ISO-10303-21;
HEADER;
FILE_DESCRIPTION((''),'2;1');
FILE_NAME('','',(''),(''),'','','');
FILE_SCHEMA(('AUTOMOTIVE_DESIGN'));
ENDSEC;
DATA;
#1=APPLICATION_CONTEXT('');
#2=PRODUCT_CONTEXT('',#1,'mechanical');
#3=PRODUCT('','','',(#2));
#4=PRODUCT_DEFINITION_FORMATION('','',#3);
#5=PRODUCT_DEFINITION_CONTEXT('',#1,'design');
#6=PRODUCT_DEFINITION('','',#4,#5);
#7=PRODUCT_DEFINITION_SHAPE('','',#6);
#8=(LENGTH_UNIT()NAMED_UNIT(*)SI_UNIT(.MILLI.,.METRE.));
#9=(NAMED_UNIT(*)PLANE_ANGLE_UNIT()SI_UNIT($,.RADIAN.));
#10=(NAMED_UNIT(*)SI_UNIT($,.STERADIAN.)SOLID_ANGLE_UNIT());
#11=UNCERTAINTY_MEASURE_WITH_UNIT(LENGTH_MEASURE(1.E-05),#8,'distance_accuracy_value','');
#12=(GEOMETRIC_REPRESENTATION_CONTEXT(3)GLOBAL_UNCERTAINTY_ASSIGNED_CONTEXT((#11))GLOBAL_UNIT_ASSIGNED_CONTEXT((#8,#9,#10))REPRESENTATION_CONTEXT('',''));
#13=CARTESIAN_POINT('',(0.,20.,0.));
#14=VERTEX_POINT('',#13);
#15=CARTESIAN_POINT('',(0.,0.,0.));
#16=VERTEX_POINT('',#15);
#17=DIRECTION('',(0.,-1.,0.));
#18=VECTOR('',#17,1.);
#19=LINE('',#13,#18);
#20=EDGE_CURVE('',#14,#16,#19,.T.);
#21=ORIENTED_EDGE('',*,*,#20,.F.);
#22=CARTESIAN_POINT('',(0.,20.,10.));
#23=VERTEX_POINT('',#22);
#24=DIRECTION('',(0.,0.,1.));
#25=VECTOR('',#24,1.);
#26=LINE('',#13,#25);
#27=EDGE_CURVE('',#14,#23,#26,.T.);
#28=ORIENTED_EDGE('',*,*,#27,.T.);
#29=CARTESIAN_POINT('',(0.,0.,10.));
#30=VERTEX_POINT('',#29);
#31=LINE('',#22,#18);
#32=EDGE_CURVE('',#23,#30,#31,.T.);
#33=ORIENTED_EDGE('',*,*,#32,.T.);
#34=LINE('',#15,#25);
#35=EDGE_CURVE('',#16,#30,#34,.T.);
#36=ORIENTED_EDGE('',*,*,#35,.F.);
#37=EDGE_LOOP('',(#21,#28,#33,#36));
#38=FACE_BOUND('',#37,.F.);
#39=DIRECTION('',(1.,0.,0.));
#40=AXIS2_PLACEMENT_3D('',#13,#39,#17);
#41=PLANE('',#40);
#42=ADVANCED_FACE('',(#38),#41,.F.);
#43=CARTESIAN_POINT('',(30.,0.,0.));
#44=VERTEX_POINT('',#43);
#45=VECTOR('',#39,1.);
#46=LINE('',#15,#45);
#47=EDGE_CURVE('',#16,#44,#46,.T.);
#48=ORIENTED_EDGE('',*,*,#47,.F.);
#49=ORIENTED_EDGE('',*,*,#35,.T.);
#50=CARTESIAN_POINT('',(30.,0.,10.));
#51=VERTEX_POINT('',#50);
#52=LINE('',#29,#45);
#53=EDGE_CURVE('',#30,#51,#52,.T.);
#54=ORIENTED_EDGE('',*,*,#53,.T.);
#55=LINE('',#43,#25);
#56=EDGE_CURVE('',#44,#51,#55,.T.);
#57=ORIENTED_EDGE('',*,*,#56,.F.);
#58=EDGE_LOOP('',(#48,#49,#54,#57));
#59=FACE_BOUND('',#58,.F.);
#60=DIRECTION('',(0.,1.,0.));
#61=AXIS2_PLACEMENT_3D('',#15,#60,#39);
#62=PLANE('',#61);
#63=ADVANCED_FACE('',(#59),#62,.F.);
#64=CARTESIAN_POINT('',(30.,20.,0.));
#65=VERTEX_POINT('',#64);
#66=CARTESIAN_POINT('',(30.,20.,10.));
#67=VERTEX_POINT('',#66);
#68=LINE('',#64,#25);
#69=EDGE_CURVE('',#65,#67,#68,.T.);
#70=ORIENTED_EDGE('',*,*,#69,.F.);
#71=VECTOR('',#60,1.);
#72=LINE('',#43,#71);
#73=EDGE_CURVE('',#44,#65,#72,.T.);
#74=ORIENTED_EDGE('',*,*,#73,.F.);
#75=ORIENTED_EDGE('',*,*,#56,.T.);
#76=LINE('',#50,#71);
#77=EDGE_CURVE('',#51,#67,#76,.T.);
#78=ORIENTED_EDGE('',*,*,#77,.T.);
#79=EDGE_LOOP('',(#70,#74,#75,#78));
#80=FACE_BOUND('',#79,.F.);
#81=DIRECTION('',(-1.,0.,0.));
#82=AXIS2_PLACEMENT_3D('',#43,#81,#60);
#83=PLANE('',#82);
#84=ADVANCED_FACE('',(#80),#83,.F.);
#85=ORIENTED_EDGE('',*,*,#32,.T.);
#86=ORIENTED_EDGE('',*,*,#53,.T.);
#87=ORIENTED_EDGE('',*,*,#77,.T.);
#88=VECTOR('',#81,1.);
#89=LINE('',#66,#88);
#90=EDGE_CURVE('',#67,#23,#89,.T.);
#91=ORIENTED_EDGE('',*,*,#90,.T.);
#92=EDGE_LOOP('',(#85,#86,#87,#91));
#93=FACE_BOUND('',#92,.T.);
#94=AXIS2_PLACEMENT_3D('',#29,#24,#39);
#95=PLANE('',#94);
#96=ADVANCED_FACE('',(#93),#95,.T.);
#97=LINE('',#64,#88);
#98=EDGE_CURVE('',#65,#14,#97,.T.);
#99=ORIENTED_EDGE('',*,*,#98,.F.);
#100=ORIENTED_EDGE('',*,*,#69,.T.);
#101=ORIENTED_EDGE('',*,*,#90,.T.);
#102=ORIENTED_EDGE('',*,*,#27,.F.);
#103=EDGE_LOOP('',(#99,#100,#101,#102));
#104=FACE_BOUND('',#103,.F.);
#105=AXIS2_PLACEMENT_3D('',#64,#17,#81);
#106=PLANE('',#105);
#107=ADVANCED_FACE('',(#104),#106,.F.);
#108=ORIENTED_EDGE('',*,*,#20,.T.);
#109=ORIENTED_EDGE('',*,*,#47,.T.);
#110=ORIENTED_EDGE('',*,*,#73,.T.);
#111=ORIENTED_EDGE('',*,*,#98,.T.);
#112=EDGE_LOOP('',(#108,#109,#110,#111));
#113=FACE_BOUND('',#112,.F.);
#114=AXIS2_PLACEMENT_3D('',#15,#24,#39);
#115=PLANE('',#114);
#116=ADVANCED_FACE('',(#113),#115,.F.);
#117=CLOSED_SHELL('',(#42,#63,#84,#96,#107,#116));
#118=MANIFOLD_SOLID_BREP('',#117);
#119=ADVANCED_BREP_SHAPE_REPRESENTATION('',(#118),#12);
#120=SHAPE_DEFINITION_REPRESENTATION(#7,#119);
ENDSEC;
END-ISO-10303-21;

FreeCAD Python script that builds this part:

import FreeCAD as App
import Part
import Sketcher


def add_polygon(sketch, points):
    """Adds a closed chain of lines whose ends are joined by coincident constraints."""
    first, n = sketch.GeometryCount, len(points)
    for a, b in zip(points, points[1:] + points[:1]):
        sketch.addGeometry(Part.LineSegment(App.Vector(*a, 0), App.Vector(*b, 0)), False)
    for i in range(n):
        sketch.addConstraint(Sketcher.Constraint("Coincident", first + i, 2, first + (i + 1) % n, 1))

doc = App.newDocument("Part")
body = doc.addObject("PartDesign::Body", "Body")

# Sketch on XY plane
sketch1 = doc.addObject("Sketcher::SketchObject", "Sketch")
body.addObject(sketch1)
sketch1.AttachmentSupport = (doc.XY_Plane, [""])
sketch1.MapMode = "FlatFace"
add_polygon(sketch1, [(0, 20), (0, 0), (30, 0), (30, 20)])  # lines 0-3
sketch1.addConstraint(Sketcher.Constraint("Vertical", 0))
sketch1.addConstraint(Sketcher.Constraint("Horizontal", 1))
sketch1.addConstraint(Sketcher.Constraint("Vertical", 2))
sketch1.addConstraint(Sketcher.Constraint("Horizontal", 3))
sketch1.addConstraint(Sketcher.Constraint("Coincident", 0, 2, -1, 1))
sketch1.addConstraint(Sketcher.Constraint("DistanceX", 1, 1, 1, 2, 30.0))
sketch1.addConstraint(Sketcher.Constraint("DistanceY", 0, 2, 0, 1, 20.0))
pad1 = doc.addObject("PartDesign::Pad", "Pad")
body.addObject(pad1)
pad1.Profile = sketch1
pad1.Length = 10

doc.recompute()
